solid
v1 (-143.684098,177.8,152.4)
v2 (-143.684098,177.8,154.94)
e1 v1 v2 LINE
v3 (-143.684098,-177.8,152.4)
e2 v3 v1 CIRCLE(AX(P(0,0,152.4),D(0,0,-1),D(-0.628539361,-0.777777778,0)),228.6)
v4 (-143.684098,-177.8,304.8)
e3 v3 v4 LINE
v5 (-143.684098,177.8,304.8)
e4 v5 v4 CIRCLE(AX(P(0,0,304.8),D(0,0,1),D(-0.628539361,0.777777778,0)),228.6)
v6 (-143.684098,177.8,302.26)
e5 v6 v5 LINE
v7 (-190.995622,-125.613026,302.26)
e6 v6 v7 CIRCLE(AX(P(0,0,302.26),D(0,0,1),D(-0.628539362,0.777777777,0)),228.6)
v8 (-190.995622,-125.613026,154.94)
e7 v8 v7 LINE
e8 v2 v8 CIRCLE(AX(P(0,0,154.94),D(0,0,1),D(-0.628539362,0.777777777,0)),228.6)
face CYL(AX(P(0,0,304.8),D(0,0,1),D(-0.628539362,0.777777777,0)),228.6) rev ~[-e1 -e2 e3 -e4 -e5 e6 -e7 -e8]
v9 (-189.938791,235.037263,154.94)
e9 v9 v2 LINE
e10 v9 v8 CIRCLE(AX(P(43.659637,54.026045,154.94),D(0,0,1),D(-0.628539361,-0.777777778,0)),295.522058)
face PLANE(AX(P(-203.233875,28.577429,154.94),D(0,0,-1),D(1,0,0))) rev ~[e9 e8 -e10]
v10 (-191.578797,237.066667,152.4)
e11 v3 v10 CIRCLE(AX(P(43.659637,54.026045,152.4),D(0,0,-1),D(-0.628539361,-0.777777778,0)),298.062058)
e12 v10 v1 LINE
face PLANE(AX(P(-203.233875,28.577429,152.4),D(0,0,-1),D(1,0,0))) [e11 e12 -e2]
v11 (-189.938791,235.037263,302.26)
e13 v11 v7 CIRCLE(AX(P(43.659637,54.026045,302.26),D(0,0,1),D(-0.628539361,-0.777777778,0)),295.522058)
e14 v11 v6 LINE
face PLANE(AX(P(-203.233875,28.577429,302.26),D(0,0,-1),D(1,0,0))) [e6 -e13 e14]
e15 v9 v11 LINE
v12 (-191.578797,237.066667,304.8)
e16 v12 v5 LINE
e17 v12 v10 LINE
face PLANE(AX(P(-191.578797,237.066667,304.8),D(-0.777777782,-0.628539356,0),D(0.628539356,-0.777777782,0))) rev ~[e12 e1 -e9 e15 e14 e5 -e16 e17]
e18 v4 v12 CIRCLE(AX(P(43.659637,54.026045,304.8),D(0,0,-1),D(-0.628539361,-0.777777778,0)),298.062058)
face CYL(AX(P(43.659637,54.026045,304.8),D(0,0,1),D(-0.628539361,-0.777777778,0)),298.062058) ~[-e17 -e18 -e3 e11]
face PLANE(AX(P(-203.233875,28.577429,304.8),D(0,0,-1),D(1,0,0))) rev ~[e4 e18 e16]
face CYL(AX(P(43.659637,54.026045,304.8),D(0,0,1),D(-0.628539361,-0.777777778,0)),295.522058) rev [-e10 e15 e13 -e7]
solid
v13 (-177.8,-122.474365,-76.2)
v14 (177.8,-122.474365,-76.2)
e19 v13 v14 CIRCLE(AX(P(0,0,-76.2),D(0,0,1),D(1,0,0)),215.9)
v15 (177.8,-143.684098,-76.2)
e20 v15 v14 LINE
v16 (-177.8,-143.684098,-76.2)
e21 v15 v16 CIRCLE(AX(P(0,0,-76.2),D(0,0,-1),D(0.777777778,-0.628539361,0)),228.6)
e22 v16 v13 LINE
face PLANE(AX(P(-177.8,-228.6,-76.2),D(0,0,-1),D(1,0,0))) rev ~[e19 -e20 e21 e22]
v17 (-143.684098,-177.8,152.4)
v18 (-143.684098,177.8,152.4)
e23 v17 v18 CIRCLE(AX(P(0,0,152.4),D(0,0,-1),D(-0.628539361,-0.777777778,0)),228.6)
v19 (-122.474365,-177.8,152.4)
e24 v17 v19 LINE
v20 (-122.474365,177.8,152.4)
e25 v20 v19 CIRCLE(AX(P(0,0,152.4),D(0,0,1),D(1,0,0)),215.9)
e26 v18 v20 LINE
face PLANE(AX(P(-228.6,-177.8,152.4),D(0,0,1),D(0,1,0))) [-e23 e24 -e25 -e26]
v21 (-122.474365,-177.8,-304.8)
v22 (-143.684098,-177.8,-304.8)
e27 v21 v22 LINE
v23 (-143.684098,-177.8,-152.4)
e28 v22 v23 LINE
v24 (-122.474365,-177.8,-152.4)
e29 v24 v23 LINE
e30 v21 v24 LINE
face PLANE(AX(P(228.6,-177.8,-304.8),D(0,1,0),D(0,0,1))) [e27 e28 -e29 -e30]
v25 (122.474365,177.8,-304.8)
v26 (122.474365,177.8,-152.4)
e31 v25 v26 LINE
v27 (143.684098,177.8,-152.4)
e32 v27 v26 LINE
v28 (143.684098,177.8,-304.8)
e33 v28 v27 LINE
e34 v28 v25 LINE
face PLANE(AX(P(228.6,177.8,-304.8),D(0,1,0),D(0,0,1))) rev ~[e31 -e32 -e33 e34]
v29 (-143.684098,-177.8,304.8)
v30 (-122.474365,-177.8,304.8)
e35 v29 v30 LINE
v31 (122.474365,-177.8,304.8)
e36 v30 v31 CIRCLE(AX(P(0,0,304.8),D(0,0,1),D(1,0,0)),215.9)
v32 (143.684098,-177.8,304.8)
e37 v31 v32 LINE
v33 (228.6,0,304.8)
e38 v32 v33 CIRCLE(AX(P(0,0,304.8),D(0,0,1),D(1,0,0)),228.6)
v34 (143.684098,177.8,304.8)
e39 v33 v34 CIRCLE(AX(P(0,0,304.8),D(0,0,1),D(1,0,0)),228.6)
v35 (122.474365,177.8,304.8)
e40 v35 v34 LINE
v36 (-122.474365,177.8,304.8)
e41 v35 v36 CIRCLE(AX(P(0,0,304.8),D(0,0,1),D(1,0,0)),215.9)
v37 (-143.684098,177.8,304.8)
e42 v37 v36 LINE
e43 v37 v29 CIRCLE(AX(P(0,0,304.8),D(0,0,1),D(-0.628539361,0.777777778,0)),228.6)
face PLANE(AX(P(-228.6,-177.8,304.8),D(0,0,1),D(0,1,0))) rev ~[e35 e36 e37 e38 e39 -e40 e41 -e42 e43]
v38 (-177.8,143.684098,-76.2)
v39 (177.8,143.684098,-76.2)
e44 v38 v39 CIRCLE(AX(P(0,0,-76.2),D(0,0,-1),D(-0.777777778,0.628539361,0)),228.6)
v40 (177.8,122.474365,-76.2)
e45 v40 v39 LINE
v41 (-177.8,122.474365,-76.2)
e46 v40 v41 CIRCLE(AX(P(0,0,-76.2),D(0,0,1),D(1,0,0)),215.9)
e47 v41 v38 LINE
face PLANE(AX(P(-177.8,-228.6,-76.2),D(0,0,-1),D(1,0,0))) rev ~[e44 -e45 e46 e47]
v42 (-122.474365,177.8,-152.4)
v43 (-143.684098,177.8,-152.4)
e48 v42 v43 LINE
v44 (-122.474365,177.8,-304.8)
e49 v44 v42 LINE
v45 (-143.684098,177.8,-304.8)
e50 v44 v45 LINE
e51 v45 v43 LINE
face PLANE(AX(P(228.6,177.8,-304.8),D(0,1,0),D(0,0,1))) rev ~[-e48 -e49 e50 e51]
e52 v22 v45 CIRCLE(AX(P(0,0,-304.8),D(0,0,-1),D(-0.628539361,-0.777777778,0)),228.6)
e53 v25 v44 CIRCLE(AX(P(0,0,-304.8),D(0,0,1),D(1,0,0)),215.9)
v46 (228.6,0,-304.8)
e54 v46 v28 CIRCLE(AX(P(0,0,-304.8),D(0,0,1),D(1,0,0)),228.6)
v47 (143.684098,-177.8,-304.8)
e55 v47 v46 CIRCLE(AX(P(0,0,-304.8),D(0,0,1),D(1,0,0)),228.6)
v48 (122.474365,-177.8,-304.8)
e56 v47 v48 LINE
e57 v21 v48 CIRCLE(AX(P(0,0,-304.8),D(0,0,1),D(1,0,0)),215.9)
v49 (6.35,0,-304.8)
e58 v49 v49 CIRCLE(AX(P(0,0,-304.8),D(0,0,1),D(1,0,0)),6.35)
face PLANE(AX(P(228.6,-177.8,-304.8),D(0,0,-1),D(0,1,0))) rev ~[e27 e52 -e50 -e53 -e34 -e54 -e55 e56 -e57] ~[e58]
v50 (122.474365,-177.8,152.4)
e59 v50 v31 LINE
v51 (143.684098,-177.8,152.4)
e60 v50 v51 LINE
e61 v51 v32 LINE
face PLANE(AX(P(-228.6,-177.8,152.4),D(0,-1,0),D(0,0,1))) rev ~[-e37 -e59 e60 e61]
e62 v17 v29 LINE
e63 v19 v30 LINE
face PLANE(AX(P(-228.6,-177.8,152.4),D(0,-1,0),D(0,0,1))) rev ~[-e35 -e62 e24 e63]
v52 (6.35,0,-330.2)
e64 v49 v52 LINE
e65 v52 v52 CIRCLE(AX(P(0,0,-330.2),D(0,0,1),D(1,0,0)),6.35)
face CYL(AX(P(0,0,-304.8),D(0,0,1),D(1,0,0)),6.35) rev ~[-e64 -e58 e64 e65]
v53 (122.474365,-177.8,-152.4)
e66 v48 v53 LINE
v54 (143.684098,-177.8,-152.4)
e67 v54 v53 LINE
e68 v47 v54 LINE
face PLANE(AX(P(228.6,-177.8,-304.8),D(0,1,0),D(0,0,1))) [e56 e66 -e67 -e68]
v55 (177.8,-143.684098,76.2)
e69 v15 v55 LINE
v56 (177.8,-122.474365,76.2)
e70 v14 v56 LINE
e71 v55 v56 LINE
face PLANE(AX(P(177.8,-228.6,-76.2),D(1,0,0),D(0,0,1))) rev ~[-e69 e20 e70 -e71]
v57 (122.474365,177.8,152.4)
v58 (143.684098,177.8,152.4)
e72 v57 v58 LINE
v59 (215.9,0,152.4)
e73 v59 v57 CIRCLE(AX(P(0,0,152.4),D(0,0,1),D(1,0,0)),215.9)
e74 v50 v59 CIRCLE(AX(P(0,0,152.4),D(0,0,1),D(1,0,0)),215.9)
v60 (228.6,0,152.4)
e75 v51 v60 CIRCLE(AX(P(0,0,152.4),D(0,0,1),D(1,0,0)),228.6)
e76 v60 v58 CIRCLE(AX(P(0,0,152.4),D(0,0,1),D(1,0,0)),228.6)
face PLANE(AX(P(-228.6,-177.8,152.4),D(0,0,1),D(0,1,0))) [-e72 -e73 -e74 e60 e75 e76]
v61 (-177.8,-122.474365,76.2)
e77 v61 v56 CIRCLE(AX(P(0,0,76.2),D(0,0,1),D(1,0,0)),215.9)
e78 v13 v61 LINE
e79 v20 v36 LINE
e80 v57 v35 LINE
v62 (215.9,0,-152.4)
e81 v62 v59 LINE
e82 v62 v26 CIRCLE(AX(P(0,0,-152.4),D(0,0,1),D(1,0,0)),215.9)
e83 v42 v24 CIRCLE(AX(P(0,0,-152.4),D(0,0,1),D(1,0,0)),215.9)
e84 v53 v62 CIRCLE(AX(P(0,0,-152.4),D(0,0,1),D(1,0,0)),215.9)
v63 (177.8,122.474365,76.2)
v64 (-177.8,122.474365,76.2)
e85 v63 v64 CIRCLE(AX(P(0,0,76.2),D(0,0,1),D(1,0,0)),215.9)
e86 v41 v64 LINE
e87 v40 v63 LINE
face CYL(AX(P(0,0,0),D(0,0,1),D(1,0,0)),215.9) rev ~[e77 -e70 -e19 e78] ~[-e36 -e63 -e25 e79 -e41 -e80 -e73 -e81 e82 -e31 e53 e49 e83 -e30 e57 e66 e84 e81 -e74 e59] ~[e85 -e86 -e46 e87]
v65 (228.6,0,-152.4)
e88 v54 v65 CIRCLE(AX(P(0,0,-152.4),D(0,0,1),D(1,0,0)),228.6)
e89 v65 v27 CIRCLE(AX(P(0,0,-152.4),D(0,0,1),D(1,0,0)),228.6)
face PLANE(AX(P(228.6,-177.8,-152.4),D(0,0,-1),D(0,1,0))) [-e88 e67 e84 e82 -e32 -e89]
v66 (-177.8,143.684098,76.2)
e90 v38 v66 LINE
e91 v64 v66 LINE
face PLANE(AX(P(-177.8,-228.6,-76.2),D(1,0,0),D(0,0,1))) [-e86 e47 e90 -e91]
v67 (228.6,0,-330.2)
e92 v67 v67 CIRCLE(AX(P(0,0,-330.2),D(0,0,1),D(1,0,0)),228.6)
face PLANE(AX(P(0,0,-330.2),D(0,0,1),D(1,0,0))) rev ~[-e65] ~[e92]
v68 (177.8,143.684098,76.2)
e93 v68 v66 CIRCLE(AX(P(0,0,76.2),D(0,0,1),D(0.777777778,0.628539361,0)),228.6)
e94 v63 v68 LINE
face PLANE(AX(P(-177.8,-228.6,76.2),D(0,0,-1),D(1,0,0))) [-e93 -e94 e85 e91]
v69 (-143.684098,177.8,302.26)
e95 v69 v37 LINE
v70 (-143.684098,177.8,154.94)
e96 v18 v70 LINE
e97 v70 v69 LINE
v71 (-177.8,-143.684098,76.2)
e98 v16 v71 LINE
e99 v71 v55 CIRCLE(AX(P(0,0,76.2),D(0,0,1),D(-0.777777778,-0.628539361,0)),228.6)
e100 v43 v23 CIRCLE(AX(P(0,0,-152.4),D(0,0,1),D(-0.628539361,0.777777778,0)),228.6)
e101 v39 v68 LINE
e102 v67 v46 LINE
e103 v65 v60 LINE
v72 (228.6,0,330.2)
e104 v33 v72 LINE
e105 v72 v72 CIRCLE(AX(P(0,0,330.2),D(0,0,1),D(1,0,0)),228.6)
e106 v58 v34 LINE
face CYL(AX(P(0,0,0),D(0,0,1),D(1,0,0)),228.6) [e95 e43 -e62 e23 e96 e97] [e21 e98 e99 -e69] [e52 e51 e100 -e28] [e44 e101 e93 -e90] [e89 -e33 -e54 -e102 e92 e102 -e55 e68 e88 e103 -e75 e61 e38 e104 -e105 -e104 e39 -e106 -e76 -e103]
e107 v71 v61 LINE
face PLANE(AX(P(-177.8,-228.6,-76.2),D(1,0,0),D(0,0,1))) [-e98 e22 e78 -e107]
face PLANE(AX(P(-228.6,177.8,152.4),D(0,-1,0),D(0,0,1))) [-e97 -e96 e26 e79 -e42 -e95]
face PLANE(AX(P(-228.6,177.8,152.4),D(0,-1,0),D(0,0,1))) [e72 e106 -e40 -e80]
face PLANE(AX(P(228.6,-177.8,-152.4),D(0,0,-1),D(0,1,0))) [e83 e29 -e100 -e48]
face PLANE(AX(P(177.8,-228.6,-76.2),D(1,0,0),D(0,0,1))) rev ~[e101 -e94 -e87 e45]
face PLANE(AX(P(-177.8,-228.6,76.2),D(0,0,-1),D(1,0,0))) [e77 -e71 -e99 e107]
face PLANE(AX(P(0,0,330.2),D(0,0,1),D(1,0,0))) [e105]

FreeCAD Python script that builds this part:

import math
import FreeCAD as App
import Part
import Sketcher
Q = App.Units.Quantity


def faces_at(feature, points):
    """Names of the faces that lie closest to the given points."""
    faces = feature.Shape.Faces
    near = lambda p: min(range(len(faces)), key=lambda i: faces[i].distToShape(Part.Vertex(*p))[0])
    return sorted({f"Face{near(p) + 1}" for p in points})


def add_polygon(sketch, points):
    """Adds a closed chain of lines whose ends are joined by coincident constraints."""
    first, n = sketch.GeometryCount, len(points)
    for a, b in zip(points, points[1:] + points[:1]):
        sketch.addGeometry(Part.LineSegment(App.Vector(*a, 0), App.Vector(*b, 0)), False)
    for i in range(n):
        sketch.addConstraint(Sketcher.Constraint("Coincident", first + i, 2, first + (i + 1) % n, 1))

doc = App.newDocument("Part")
body = doc.addObject("PartDesign::Body", "Body")

# Sketch on XY plane
sketch1 = body.newObject("Sketcher::SketchObject", "Sketch")
sketch1.AttachmentSupport = (doc.getObject("XY_Plane"), [""])
sketch1.MapMode = "FlatFace"
sketch1.addGeometry(Part.Circle(App.Vector(0, 0, 0), App.Vector(0, 0, 1), 229), False)
sketch1.addConstraint(Sketcher.Constraint("Coincident", 0, 3, -1, 1))
sketch1.addConstraint(Sketcher.Constraint("Diameter", 0, Q("18 in")))
pad1 = body.newObject("PartDesign::Pad", "Pad")
pad1.Profile = sketch1
pad1.Type = "TwoLengths"
pad1.Length = Q("13 in")
pad1.Length2 = Q("13 in")
doc.recompute()

thickness = body.newObject("PartDesign::Thickness", "Thickness")
thickness.Base = (pad1, faces_at(pad1, [(0, 0, 330.2), (0, 0, -330.2)]))
thickness.Value = Q("0.5 in")
thickness.Reversed = True
thickness.Join = "Arc"

# Sketch on YZ plane
sketch2 = body.newObject("Sketcher::SketchObject", "Sketch001")
sketch2.AttachmentSupport = (doc.getObject("YZ_Plane"), [""])
sketch2.MapMode = "FlatFace"
sketch2.AttachmentOffset = App.Placement(App.Vector(0, 0, 9 * 25.4), App.Rotation())
add_polygon(sketch2, [(-178, -152), (-178, -305), (178, -305), (178, -152)])  # lines 0-3
sketch2.addConstraint(Sketcher.Constraint("Vertical", 0))
sketch2.addConstraint(Sketcher.Constraint("Horizontal", 1))
sketch2.addConstraint(Sketcher.Constraint("Vertical", 2))
sketch2.addConstraint(Sketcher.Constraint("Horizontal", 3))
sketch2.addConstraint(Sketcher.Constraint("DistanceX", 1, 1, 1, 2, Q("14 in")))
sketch2.addConstraint(Sketcher.Constraint("DistanceY", 0, 2, 0, 1, Q("6 in")))
sketch2.addConstraint(Sketcher.Constraint("DistanceX", 0, 2, -1, 1, Q("7 in")))
sketch2.addConstraint(Sketcher.Constraint("DistanceY", 0, 2, -1, 1, Q("12 in")))
pocket1 = body.newObject("PartDesign::Pocket", "Pocket")
pocket1.Profile = sketch2
pocket1.Length = Q("18 in")

# Sketch on YZ plane
sketch3 = body.newObject("Sketcher::SketchObject", "Sketch002")
sketch3.AttachmentSupport = (doc.getObject("YZ_Plane"), [""])
sketch3.MapMode = "FlatFace"
sketch3.AttachmentOffset = App.Placement(App.Vector(0, 0, -9 * 25.4), App.Rotation())
add_polygon(sketch3, [(-178, 305), (-178, 152), (178, 152), (178, 305)])  # lines 0-3
sketch3.addConstraint(Sketcher.Constraint("Vertical", 0))
sketch3.addConstraint(Sketcher.Constraint("Horizontal", 1))
sketch3.addConstraint(Sketcher.Constraint("Vertical", 2))
sketch3.addConstraint(Sketcher.Constraint("Horizontal", 3))
sketch3.addConstraint(Sketcher.Constraint("DistanceX", 1, 1, 1, 2, Q("14 in")))
sketch3.addConstraint(Sketcher.Constraint("DistanceY", 0, 2, 0, 1, Q("6 in")))
sketch3.addConstraint(Sketcher.Constraint("DistanceX", 0, 2, -1, 1, Q("7 in")))
sketch3.addConstraint(Sketcher.Constraint("DistanceY", -1, 1, 0, 2, Q("6 in")))
pocket2 = body.newObject("PartDesign::Pocket", "Pocket001")
pocket2.Profile = sketch3
pocket2.Length = Q("18 in")
pocket2.Reversed = True

# Sketch on XZ plane
sketch4 = body.newObject("Sketcher::SketchObject", "Sketch003")
sketch4.AttachmentSupport = (doc.getObject("XZ_Plane"), [""])
sketch4.MapMode = "FlatFace"
sketch4.AttachmentOffset = App.Placement(App.Vector(0, 0, 9 * 25.4), App.Rotation())
add_polygon(sketch4, [(-178, 76), (-178, -76), (178, -76), (178, 76)])  # lines 0-3
sketch4.addConstraint(Sketcher.Constraint("Vertical", 0))
sketch4.addConstraint(Sketcher.Constraint("Horizontal", 1))
sketch4.addConstraint(Sketcher.Constraint("Vertical", 2))
sketch4.addConstraint(Sketcher.Constraint("Horizontal", 3))
sketch4.addConstraint(Sketcher.Constraint("Symmetric", 0, 2, 2, 2, -1, 1))
sketch4.addConstraint(Sketcher.Constraint("DistanceX", 1, 1, 1, 2, Q("14 in")))
sketch4.addConstraint(Sketcher.Constraint("DistanceY", 0, 2, 0, 1, Q("6 in")))
pocket3 = body.newObject("PartDesign::Pocket", "Pocket002")
pocket3.Profile = sketch4
pocket3.Length = Q("18 in")
body2 = doc.addObject("PartDesign::Body", "Body001")

# Sketch on XY plane
sketch5 = body2.newObject("Sketcher::SketchObject", "Sketch004")
sketch5.AttachmentSupport = (doc.getObject("XY_Plane001"), [""])
sketch5.MapMode = "FlatFace"
sketch5.AttachmentOffset = App.Placement(App.Vector(0, 0, 12 * 25.4), App.Rotation())
sketch5.addGeometry(Part.LineSegment(App.Vector(-192, 237, 0), App.Vector(-144, 178, 0)), False)
sketch5.addGeometry(Part.ArcOfCircle(Part.Circle(App.Vector(0, 0, 0), App.Vector(0, 0, 1), 229), math.radians(129), math.radians(231)), False)
sketch5.addGeometry(Part.ArcOfCircle(Part.Circle(App.Vector(44, 54, 0), App.Vector(0, 0, 1), 298), math.radians(142), math.radians(231)), False)
sketch5.addConstraint(Sketcher.Constraint("Coincident", 0, 2, 1, 1))
sketch5.addConstraint(Sketcher.Constraint("Tangent", 1, 2, 2, 2))
sketch5.addConstraint(Sketcher.Constraint("Coincident", 2, 1, 0, 1))
sketch5.addConstraint(Sketcher.Constraint("Coincident", 1, 3, -1, 1))
sketch5.addConstraint(Sketcher.Constraint("Vertical", 0, 2, 1, 2))
sketch5.addConstraint(Sketcher.Constraint("Radius", 1, Q("9 in")))
sketch5.addConstraint(Sketcher.Constraint("Distance", 0, Q("3 in")))
sketch5.addConstraint(Sketcher.Constraint("DistanceY", -1, 1, 0, 2, Q("7 in")))
sketch5.addConstraint(Sketcher.Constraint("Radius", 2, Q("298.062058 mm")))
pad2 = body2.newObject("PartDesign::Pad", "Pad001")
pad2.Profile = sketch5
pad2.Length = Q("6 in")
pad2.Reversed = True
doc.recompute()

thickness2 = body2.newObject("PartDesign::Thickness", "Thickness001")
thickness2.Base = (pad2, faces_at(pad2, [(-167.631, 207.433, 228.6), (-228.6, 0, 228.6)]))
thickness2.Value = Q("0.1 in")
thickness2.Reversed = True
thickness2.Join = "Arc"
body.AllowCompound = True
doc.recompute()

boolean = body.newObject("PartDesign::Boolean", "Boolean")
boolean.Type = "Fuse"
boolean.addObjects([body2])

# Sketch on XY plane
sketch6 = body.newObject("Sketcher::SketchObject", "Sketch005")
sketch6.AttachmentSupport = (doc.getObject("XY_Plane"), [""])
sketch6.MapMode = "FlatFace"
sketch6.AttachmentOffset = App.Placement(App.Vector(0, 0, 13 * 25.4), App.Rotation())
sketch6.addGeometry(Part.Circle(App.Vector(0, 0, 0), App.Vector(0, 0, 1), 229), False)
sketch6.addConstraint(Sketcher.Constraint("Coincident", 0, 3, -1, 1))
sketch6.addConstraint(Sketcher.Constraint("Diameter", 0, Q("18 in")))
pad3 = body.newObject("PartDesign::Pad", "Pad002")
pad3.Profile = sketch6
pad3.Length = Q("1 in")
pad3.Reversed = True

# Sketch on XY plane
sketch7 = body.newObject("Sketcher::SketchObject", "Sketch006")
sketch7.AttachmentSupport = (doc.getObject("XY_Plane"), [""])
sketch7.MapMode = "FlatFace"
sketch7.AttachmentOffset = App.Placement(App.Vector(0, 0, -13 * 25.4), App.Rotation())
sketch7.addGeometry(Part.Circle(App.Vector(0, 0, 0), App.Vector(0, 0, 1), 229), False)
sketch7.addConstraint(Sketcher.Constraint("Coincident", 0, 3, -1, 1))
sketch7.addConstraint(Sketcher.Constraint("Diameter", 0, Q("18 in")))
pad4 = body.newObject("PartDesign::Pad", "Pad003")
pad4.Profile = sketch7
pad4.Length = Q("1 in")

# Sketch on XY plane
sketch8 = body.newObject("Sketcher::SketchObject", "Sketch007")
sketch8.AttachmentSupport = (doc.getObject("XY_Plane"), [""])
sketch8.MapMode = "FlatFace"
sketch8.AttachmentOffset = App.Placement(App.Vector(0, 0, -12 * 25.4), App.Rotation())
sketch8.addGeometry(Part.Circle(App.Vector(0, 0, 0), App.Vector(0, 0, 1), 6), False)
sketch8.addConstraint(Sketcher.Constraint("Coincident", 0, 3, -1, 1))
sketch8.addConstraint(Sketcher.Constraint("Diameter", 0, Q("0.5 in")))
pocket4 = body.newObject("PartDesign::Pocket", "Pocket003")
pocket4.Profile = sketch8
pocket4.Type = "ThroughAll"

doc.recompute()
